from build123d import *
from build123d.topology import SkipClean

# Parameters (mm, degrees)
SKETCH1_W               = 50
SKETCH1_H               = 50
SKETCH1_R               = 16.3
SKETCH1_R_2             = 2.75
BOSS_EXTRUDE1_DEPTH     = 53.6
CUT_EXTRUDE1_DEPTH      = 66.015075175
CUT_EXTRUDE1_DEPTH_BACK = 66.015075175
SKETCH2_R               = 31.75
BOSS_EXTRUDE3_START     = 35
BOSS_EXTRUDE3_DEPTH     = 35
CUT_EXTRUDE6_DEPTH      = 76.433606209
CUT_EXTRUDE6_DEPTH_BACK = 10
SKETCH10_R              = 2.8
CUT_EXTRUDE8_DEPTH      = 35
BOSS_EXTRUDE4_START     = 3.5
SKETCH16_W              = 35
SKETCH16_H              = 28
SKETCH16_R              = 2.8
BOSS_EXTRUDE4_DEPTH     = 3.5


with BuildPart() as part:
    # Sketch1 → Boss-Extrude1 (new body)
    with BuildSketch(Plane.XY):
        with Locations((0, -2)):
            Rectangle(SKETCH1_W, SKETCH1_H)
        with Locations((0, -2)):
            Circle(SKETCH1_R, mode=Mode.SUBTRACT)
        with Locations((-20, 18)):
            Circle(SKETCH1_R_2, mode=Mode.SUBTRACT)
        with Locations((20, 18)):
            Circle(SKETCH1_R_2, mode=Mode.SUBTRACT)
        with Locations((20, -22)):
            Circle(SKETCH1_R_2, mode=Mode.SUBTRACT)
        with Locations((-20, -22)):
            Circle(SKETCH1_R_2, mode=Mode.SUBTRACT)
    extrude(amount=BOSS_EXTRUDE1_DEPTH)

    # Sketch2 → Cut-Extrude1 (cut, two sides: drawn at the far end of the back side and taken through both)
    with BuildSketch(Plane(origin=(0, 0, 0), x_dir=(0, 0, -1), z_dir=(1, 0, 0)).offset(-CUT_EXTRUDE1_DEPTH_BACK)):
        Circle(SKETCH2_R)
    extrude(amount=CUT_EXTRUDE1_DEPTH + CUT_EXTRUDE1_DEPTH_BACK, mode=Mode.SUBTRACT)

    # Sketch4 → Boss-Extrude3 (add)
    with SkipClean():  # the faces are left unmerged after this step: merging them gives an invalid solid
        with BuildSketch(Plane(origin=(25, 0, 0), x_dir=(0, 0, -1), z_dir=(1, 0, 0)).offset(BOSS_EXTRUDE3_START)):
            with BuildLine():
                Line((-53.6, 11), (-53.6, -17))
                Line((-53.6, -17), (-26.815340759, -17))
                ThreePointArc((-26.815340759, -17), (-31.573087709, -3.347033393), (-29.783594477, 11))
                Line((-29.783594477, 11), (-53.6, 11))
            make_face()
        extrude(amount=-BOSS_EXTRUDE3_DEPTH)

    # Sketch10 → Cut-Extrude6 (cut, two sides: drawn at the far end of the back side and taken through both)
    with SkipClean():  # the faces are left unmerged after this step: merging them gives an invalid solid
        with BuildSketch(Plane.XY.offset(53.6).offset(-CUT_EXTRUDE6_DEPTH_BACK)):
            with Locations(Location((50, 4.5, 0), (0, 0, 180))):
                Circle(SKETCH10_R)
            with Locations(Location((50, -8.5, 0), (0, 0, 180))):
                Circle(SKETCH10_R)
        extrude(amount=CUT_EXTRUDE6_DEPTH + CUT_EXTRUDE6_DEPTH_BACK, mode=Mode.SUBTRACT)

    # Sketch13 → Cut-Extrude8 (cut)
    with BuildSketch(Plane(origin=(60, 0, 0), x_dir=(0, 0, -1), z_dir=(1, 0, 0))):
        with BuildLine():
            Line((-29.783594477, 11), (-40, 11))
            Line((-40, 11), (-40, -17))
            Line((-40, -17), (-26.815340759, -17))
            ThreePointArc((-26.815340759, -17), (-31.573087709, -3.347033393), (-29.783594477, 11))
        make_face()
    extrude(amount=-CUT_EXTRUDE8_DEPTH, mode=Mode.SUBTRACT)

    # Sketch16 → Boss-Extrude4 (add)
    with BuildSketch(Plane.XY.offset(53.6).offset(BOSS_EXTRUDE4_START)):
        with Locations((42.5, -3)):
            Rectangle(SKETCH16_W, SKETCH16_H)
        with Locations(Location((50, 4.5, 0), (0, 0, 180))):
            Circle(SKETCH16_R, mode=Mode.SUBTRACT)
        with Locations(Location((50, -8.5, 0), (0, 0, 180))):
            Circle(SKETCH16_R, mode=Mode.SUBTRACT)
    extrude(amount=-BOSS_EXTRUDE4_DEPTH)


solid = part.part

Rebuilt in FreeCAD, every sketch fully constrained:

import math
import FreeCAD as App
import Part
import Sketcher
Q = App.Units.Quantity


def add_polygon(sketch, points):
    """Adds a closed chain of lines whose ends are joined by coincident constraints."""
    first, n = sketch.GeometryCount, len(points)
    for a, b in zip(points, points[1:] + points[:1]):
        sketch.addGeometry(Part.LineSegment(App.Vector(*a, 0), App.Vector(*b, 0)), False)
    for i in range(n):
        sketch.addConstraint(Sketcher.Constraint("Coincident", first + i, 2, first + (i + 1) % n, 1))

doc = App.newDocument("Part")
body = doc.addObject("PartDesign::Body", "Body")

# Sketch on XY plane
sketch1 = doc.addObject("Sketcher::SketchObject", "Sketch")
body.addObject(sketch1)
sketch1.AttachmentSupport = (doc.XY_Plane, [""])
sketch1.MapMode = "FlatFace"
add_polygon(sketch1, [(-25, 23), (-25, -27), (25, -27), (25, 23)])  # lines 0-3
sketch1.addGeometry(Part.Circle(App.Vector(-20, -22, 0), App.Vector(0, 0, 1), 2.8), False)  # 4
sketch1.addGeometry(Part.Circle(App.Vector(20, -22, 0), App.Vector(0, 0, 1), 2.8), False)  # 5
sketch1.addGeometry(Part.Circle(App.Vector(-20, 18, 0), App.Vector(0, 0, 1), 2.8), False)  # 6
sketch1.addGeometry(Part.Circle(App.Vector(0, -2, 0), App.Vector(0, 0, 1), 16.3), False)  # 7
sketch1.addGeometry(Part.Circle(App.Vector(20, 18, 0), App.Vector(0, 0, 1), 2.8), False)  # 8
sketch1.addConstraint(Sketcher.Constraint("Vertical", 0))
sketch1.addConstraint(Sketcher.Constraint("Horizontal", 1))
sketch1.addConstraint(Sketcher.Constraint("Vertical", 2))
sketch1.addConstraint(Sketcher.Constraint("Horizontal", 3))
sketch1.addConstraint(Sketcher.Constraint("Equal", 4, 5))
sketch1.addConstraint(Sketcher.Constraint("Equal", 5, 6))
sketch1.addConstraint(Sketcher.Constraint("Equal", 6, 8))
sketch1.addConstraint(Sketcher.Constraint("Symmetric", 4, 3, 5, 3, -2))
sketch1.addConstraint(Sketcher.Constraint("Symmetric", 6, 3, 8, 3, -2))
sketch1.addConstraint(Sketcher.Constraint("PointOnObject", 7, 3, -2))
sketch1.addConstraint(Sketcher.Constraint("Vertical", 4, 3, 6, 3))
sketch1.addConstraint(Sketcher.Constraint("Equal", 3, 0))
sketch1.addConstraint(Sketcher.Constraint("Diameter", 4, Q("5.5 mm")))
sketch1.addConstraint(Sketcher.Constraint("Diameter", 7, Q("32.6 mm")))
sketch1.addConstraint(Sketcher.Constraint("DistanceX", 1, 1, 1, 2, Q("50 mm")))
sketch1.addConstraint(Sketcher.Constraint("DistanceX", 4, 3, -1, 1, Q("20 mm")))
sketch1.addConstraint(Sketcher.Constraint("DistanceY", 4, 3, -1, 1, Q("22 mm")))
sketch1.addConstraint(Sketcher.Constraint("DistanceY", -1, 1, 6, 3, Q("18 mm")))
sketch1.addConstraint(Sketcher.Constraint("DistanceY", 7, 3, -1, 1, Q("2 mm")))
sketch1.addConstraint(Sketcher.Constraint("DistanceX", 0, 2, -1, 1, Q("25 mm")))
sketch1.addConstraint(Sketcher.Constraint("DistanceY", 0, 2, -1, 1, Q("27 mm")))
pad1 = doc.addObject("PartDesign::Pad", "Pad")
body.addObject(pad1)
pad1.Profile = sketch1
pad1.Length = 53.6

# Sketch on YZ plane
sketch2 = doc.addObject("Sketcher::SketchObject", "Sketch001")
body.addObject(sketch2)
sketch2.AttachmentSupport = (doc.YZ_Plane, [""])
sketch2.MapMode = "FlatFace"
sketch2.addGeometry(Part.Circle(App.Vector(0, 0, 0), App.Vector(0, 0, 1), 32), False)
sketch2.addConstraint(Sketcher.Constraint("Coincident", 0, 3, -1, 1))
sketch2.addConstraint(Sketcher.Constraint("Diameter", 0, Q("63.5 mm")))
pocket1 = doc.addObject("PartDesign::Pocket", "Pocket")
body.addObject(pocket1)
pocket1.Profile = sketch2
pocket1.Type = "ThroughAll"
pocket1.Midplane = True

# Sketch on YZ plane
sketch3 = doc.addObject("Sketcher::SketchObject", "Sketch002")
body.addObject(sketch3)
sketch3.AttachmentSupport = (doc.YZ_Plane, [""])
sketch3.MapMode = "FlatFace"
sketch3.AttachmentOffset = App.Placement(App.Vector(0, 0, 60), App.Rotation())
sketch3.addGeometry(Part.LineSegment(App.Vector(11, 54, 0), App.Vector(-17, 54, 0)), False)
sketch3.addGeometry(Part.LineSegment(App.Vector(-17, 54, 0), App.Vector(-17, 27, 0)), False)
sketch3.addGeometry(Part.ArcOfCircle(Part.Circle(App.Vector(0, 0, 0), App.Vector(0, 0, 1), 32), math.radians(70), math.radians(122)), False)
sketch3.addGeometry(Part.LineSegment(App.Vector(11, 30, 0), App.Vector(11, 54, 0)), False)
sketch3.addConstraint(Sketcher.Constraint("Coincident", 0, 2, 1, 1))
sketch3.addConstraint(Sketcher.Constraint("Coincident", 1, 2, 2, 2))
sketch3.addConstraint(Sketcher.Constraint("Coincident", 2, 1, 3, 1))
sketch3.addConstraint(Sketcher.Constraint("Coincident", 3, 2, 0, 1))
sketch3.addConstraint(Sketcher.Constraint("Horizontal", 0))
sketch3.addConstraint(Sketcher.Constraint("Vertical", 1))
sketch3.addConstraint(Sketcher.Constraint("Vertical", 3))
sketch3.addConstraint(Sketcher.Constraint("Coincident", 2, 3, -1, 1))
sketch3.addConstraint(Sketcher.Constraint("DistanceX", 0, 2, 0, 1, Q("28 mm")))
sketch3.addConstraint(Sketcher.Constraint("Radius", 2, Q("31.75 mm")))
sketch3.addConstraint(Sketcher.Constraint("DistanceX", 0, 2, -1, 1, Q("17 mm")))
sketch3.addConstraint(Sketcher.Constraint("DistanceY", -1, 1, 0, 2, Q("53.6 mm")))
pad2 = doc.addObject("PartDesign::Pad", "Pad001")
body.addObject(pad2)
pad2.Profile = sketch3
pad2.Length = 35
pad2.Reversed = True

# Sketch on XY plane
sketch4 = doc.addObject("Sketcher::SketchObject", "Sketch003")
body.addObject(sketch4)
sketch4.AttachmentSupport = (doc.XY_Plane, [""])
sketch4.MapMode = "FlatFace"
sketch4.AttachmentOffset = App.Placement(App.Vector(0, 0, 53.6), App.Rotation())
sketch4.addGeometry(Part.Circle(App.Vector(50, 4.5, 0), App.Vector(0, 0, 1), 2.8), False)
sketch4.addGeometry(Part.Circle(App.Vector(50, -8.5, 0), App.Vector(0, 0, 1), 2.8), False)
sketch4.addConstraint(Sketcher.Constraint("Equal", 0, 1))
sketch4.addConstraint(Sketcher.Constraint("Vertical", 0, 3, 1, 3))
sketch4.addConstraint(Sketcher.Constraint("Diameter", 0, Q("5.6 mm")))
sketch4.addConstraint(Sketcher.Constraint("DistanceX", -1, 1, 0, 3, Q("50 mm")))
sketch4.addConstraint(Sketcher.Constraint("DistanceY", 1, 3, 0, 3, Q("13 mm")))
sketch4.addConstraint(Sketcher.Constraint("DistanceY", -1, 1, 0, 3, Q("4.5 mm")))
pocket2 = doc.addObject("PartDesign::Pocket", "Pocket001")
body.addObject(pocket2)
pocket2.Profile = sketch4
pocket2.Type = "TwoLengths"
pocket2.Length = 76.433606
pocket2.Length2 = 10
pocket2.Reversed = True

# Sketch on YZ plane
sketch5 = doc.addObject("Sketcher::SketchObject", "Sketch004")
body.addObject(sketch5)
sketch5.AttachmentSupport = (doc.YZ_Plane, [""])
sketch5.MapMode = "FlatFace"
sketch5.AttachmentOffset = App.Placement(App.Vector(0, 0, 60), App.Rotation())
sketch5.addGeometry(Part.LineSegment(App.Vector(11, 30, 0), App.Vector(11, 40, 0)), False)
sketch5.addGeometry(Part.LineSegment(App.Vector(11, 40, 0), App.Vector(-17, 40, 0)), False)
sketch5.addGeometry(Part.LineSegment(App.Vector(-17, 40, 0), App.Vector(-17, 27, 0)), False)
sketch5.addGeometry(Part.ArcOfCircle(Part.Circle(App.Vector(0, 0, 0), App.Vector(0, 0, 1), 32), math.radians(70), math.radians(122)), False)
sketch5.addConstraint(Sketcher.Constraint("Coincident", 0, 2, 1, 1))
sketch5.addConstraint(Sketcher.Constraint("Coincident", 1, 2, 2, 1))
sketch5.addConstraint(Sketcher.Constraint("Coincident", 2, 2, 3, 2))
sketch5.addConstraint(Sketcher.Constraint("Coincident", 3, 1, 0, 1))
sketch5.addConstraint(Sketcher.Constraint("Vertical", 0))
sketch5.addConstraint(Sketcher.Constraint("Horizontal", 1))
sketch5.addConstraint(Sketcher.Constraint("Vertical", 2))
sketch5.addConstraint(Sketcher.Constraint("Coincident", 3, 3, -1, 1))
sketch5.addConstraint(Sketcher.Constraint("DistanceX", 1, 2, 1, 1, Q("28 mm")))
sketch5.addConstraint(Sketcher.Constraint("Radius", 3, Q("31.75 mm")))
sketch5.addConstraint(Sketcher.Constraint("DistanceX", -1, 1, 0, 2, Q("11 mm")))
sketch5.addConstraint(Sketcher.Constraint("DistanceY", -1, 1, 0, 2, Q("40 mm")))
pocket3 = doc.addObject("PartDesign::Pocket", "Pocket002")
body.addObject(pocket3)
pocket3.Profile = sketch5
pocket3.Length = 35

# Sketch on XY plane
sketch6 = doc.addObject("Sketcher::SketchObject", "Sketch005")
body.addObject(sketch6)
sketch6.AttachmentSupport = (doc.XY_Plane, [""])
sketch6.MapMode = "FlatFace"
sketch6.AttachmentOffset = App.Placement(App.Vector(0, 0, 57.1), App.Rotation())
add_polygon(sketch6, [(25, 11), (25, -17), (60, -17), (60, 11)])  # lines 0-3
sketch6.addGeometry(Part.Circle(App.Vector(50, -8.5, 0), App.Vector(0, 0, 1), 2.8), False)  # 4
sketch6.addGeometry(Part.Circle(App.Vector(50, 4.5, 0), App.Vector(0, 0, 1), 2.8), False)  # 5
sketch6.addConstraint(Sketcher.Constraint("Vertical", 0))
sketch6.addConstraint(Sketcher.Constraint("Horizontal", 1))
sketch6.addConstraint(Sketcher.Constraint("Vertical", 2))
sketch6.addConstraint(Sketcher.Constraint("Horizontal", 3))
sketch6.addConstraint(Sketcher.Constraint("Equal", 4, 5))
sketch6.addConstraint(Sketcher.Constraint("Vertical", 4, 3, 5, 3))
sketch6.addConstraint(Sketcher.Constraint("Diameter", 4, Q("5.6 mm")))
sketch6.addConstraint(Sketcher.Constraint("DistanceX", 1, 1, 1, 2, Q("35 mm")))
sketch6.addConstraint(Sketcher.Constraint("DistanceY", 0, 2, 0, 1, Q("28 mm")))
sketch6.addConstraint(Sketcher.Constraint("DistanceX", -1, 1, 4, 3, Q("50 mm")))
sketch6.addConstraint(Sketcher.Constraint("DistanceX", -1, 1, 0, 2, Q("25 mm")))
sketch6.addConstraint(Sketcher.Constraint("DistanceY", 0, 2, -1, 1, Q("17 mm")))
sketch6.addConstraint(Sketcher.Constraint("DistanceY", 4, 3, 5, 3, Q("13 mm")))
sketch6.addConstraint(Sketcher.Constraint("DistanceY", 4, 3, -1, 1, Q("8.5 mm")))
pad3 = doc.addObject("PartDesign::Pad", "Pad002")
body.addObject(pad3)
pad3.Profile = sketch6
pad3.Length = 3.5
pad3.Reversed = True

doc.recompute()
